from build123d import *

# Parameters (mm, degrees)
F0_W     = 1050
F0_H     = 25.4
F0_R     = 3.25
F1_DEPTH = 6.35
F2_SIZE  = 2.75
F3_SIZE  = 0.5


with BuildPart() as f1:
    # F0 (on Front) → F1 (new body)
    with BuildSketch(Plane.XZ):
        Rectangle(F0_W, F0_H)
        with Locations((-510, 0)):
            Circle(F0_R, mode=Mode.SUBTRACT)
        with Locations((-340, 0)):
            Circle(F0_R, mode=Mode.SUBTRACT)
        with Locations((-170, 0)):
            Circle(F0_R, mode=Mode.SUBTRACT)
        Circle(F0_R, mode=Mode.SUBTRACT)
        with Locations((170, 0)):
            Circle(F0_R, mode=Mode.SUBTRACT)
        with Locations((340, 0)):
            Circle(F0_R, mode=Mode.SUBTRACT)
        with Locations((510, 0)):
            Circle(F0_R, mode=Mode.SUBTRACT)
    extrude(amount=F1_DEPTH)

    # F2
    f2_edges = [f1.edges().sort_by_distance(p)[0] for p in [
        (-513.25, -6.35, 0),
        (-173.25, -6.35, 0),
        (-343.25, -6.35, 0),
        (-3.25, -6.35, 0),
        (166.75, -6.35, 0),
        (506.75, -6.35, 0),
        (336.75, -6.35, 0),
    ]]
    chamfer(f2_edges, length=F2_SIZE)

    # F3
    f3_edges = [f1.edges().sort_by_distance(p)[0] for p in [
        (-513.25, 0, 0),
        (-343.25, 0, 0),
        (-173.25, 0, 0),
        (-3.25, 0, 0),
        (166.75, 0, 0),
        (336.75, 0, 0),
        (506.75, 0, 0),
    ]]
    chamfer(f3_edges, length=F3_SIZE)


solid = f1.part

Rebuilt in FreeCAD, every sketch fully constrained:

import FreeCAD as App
import Part
import Sketcher
Q = App.Units.Quantity


def edges_at(feature, points):
    """Names of the edges that pass closest to the given points."""
    edges = feature.Shape.Edges
    near = lambda p: min(range(len(edges)), key=lambda i: edges[i].distToShape(Part.Vertex(*p))[0])
    return sorted({f"Edge{near(p) + 1}" for p in points})

doc = App.newDocument("Part")
body = doc.addObject("PartDesign::Body", "Body")

# Sketch on XZ plane
sketch1 = doc.addObject("Sketcher::SketchObject", "Sketch")
body.addObject(sketch1)
sketch1.AttachmentSupport = (doc.XZ_Plane, [""])
sketch1.MapMode = "FlatFace"
sketch1.addGeometry(Part.LineSegment(App.Vector(-525, 12.7, 0), App.Vector(-525, -12.7, 0)), False)
sketch1.addGeometry(Part.LineSegment(App.Vector(-525, -12.7, 0), App.Vector(525, -12.7, 0)), False)
sketch1.addGeometry(Part.LineSegment(App.Vector(525, -12.7, 0), App.Vector(525, 12.7, 0)), False)
sketch1.addGeometry(Part.LineSegment(App.Vector(525, 12.7, 0), App.Vector(-525, 12.7, 0)), False)
sketch1.addGeometry(Part.Circle(App.Vector(-510, 0, 0), App.Vector(0, 0, 1), 3.2), False)
sketch1.addGeometry(Part.Circle(App.Vector(-340, 0, 0), App.Vector(0, 0, 1), 3.2), False)
sketch1.addGeometry(Part.Circle(App.Vector(-170, 0, 0), App.Vector(0, 0, 1), 3.2), False)
sketch1.addGeometry(Part.Circle(App.Vector(0, 0, 0), App.Vector(0, 0, 1), 3.2), False)
sketch1.addGeometry(Part.Circle(App.Vector(170, 0, 0), App.Vector(0, 0, 1), 3.2), False)
sketch1.addGeometry(Part.Circle(App.Vector(340, 0, 0), App.Vector(0, 0, 1), 3.2), False)
sketch1.addGeometry(Part.Circle(App.Vector(510, 0, 0), App.Vector(0, 0, 1), 3.2), False)
sketch1.addConstraint(Sketcher.Constraint("Coincident", 0, 2, 1, 1))
sketch1.addConstraint(Sketcher.Constraint("Coincident", 1, 2, 2, 1))
sketch1.addConstraint(Sketcher.Constraint("Coincident", 2, 2, 3, 1))
sketch1.addConstraint(Sketcher.Constraint("Coincident", 3, 2, 0, 1))
sketch1.addConstraint(Sketcher.Constraint("Vertical", 0))
sketch1.addConstraint(Sketcher.Constraint("Horizontal", 1))
sketch1.addConstraint(Sketcher.Constraint("Vertical", 2))
sketch1.addConstraint(Sketcher.Constraint("Horizontal", 3))
sketch1.addConstraint(Sketcher.Constraint("Coincident", 7, 3, -1, 1))
sketch1.addConstraint(Sketcher.Constraint("Equal", 4, 5))
sketch1.addConstraint(Sketcher.Constraint("Equal", 5, 6))
sketch1.addConstraint(Sketcher.Constraint("Equal", 6, 7))
sketch1.addConstraint(Sketcher.Constraint("Equal", 7, 8))
sketch1.addConstraint(Sketcher.Constraint("Equal", 8, 9))
sketch1.addConstraint(Sketcher.Constraint("Equal", 9, 10))
sketch1.addConstraint(Sketcher.Constraint("Symmetric", 6, 3, 8, 3, -1, 1))
sketch1.addConstraint(Sketcher.Constraint("Symmetric", 5, 3, 9, 3, -1, 1))
sketch1.addConstraint(Sketcher.Constraint("Symmetric", 4, 3, 10, 3, -1, 1))
sketch1.addConstraint(Sketcher.Constraint("Symmetric", 0, 2, 2, 2, -1, 1))
sketch1.addConstraint(Sketcher.Constraint("PointOnObject", 4, 3, -1))
sketch1.addConstraint(Sketcher.Constraint("PointOnObject", 5, 3, -1))
sketch1.addConstraint(Sketcher.Constraint("PointOnObject", 6, 3, -1))
sketch1.addConstraint(Sketcher.Constraint("Diameter", 4, Q("6.5 mm")))
sketch1.addConstraint(Sketcher.Constraint("DistanceX", 1, 1, 1, 2, Q("1050 mm")))
sketch1.addConstraint(Sketcher.Constraint("DistanceY", 0, 2, 0, 1, Q("25.4 mm")))
sketch1.addConstraint(Sketcher.Constraint("DistanceX", 4, 3, -1, 1, Q("510 mm")))
sketch1.addConstraint(Sketcher.Constraint("DistanceX", 5, 3, -1, 1, Q("340 mm")))
sketch1.addConstraint(Sketcher.Constraint("DistanceX", 6, 3, -1, 1, Q("170 mm")))
pad1 = doc.addObject("PartDesign::Pad", "Pad")
body.addObject(pad1)
pad1.Profile = sketch1
pad1.Length = 6.35
doc.recompute()

chamfer = doc.addObject("PartDesign::Chamfer", "Chamfer")
body.addObject(chamfer)
chamfer.Base = (pad1, edges_at(pad1, [
    (-513.25, -6.35, 0),
    (-173.25, -6.35, 0),
    (-343.25, -6.35, 0),
    (-3.25, -6.35, 0),
    (166.75, -6.35, 0),
    (506.75, -6.35, 0),
    (336.75, -6.35, 0),
]))
chamfer.Size = 2.75
doc.recompute()

chamfer2 = doc.addObject("PartDesign::Chamfer", "Chamfer001")
body.addObject(chamfer2)
chamfer2.Base = (chamfer, edges_at(chamfer, [
    (-513.25, 0, 0),
    (-343.25, 0, 0),
    (-173.25, 0, 0),
    (-3.25, 0, 0),
    (166.75, 0, 0),
    (336.75, 0, 0),
    (506.75, 0, 0),
]))
chamfer2.Size = 0.5

doc.recompute()
